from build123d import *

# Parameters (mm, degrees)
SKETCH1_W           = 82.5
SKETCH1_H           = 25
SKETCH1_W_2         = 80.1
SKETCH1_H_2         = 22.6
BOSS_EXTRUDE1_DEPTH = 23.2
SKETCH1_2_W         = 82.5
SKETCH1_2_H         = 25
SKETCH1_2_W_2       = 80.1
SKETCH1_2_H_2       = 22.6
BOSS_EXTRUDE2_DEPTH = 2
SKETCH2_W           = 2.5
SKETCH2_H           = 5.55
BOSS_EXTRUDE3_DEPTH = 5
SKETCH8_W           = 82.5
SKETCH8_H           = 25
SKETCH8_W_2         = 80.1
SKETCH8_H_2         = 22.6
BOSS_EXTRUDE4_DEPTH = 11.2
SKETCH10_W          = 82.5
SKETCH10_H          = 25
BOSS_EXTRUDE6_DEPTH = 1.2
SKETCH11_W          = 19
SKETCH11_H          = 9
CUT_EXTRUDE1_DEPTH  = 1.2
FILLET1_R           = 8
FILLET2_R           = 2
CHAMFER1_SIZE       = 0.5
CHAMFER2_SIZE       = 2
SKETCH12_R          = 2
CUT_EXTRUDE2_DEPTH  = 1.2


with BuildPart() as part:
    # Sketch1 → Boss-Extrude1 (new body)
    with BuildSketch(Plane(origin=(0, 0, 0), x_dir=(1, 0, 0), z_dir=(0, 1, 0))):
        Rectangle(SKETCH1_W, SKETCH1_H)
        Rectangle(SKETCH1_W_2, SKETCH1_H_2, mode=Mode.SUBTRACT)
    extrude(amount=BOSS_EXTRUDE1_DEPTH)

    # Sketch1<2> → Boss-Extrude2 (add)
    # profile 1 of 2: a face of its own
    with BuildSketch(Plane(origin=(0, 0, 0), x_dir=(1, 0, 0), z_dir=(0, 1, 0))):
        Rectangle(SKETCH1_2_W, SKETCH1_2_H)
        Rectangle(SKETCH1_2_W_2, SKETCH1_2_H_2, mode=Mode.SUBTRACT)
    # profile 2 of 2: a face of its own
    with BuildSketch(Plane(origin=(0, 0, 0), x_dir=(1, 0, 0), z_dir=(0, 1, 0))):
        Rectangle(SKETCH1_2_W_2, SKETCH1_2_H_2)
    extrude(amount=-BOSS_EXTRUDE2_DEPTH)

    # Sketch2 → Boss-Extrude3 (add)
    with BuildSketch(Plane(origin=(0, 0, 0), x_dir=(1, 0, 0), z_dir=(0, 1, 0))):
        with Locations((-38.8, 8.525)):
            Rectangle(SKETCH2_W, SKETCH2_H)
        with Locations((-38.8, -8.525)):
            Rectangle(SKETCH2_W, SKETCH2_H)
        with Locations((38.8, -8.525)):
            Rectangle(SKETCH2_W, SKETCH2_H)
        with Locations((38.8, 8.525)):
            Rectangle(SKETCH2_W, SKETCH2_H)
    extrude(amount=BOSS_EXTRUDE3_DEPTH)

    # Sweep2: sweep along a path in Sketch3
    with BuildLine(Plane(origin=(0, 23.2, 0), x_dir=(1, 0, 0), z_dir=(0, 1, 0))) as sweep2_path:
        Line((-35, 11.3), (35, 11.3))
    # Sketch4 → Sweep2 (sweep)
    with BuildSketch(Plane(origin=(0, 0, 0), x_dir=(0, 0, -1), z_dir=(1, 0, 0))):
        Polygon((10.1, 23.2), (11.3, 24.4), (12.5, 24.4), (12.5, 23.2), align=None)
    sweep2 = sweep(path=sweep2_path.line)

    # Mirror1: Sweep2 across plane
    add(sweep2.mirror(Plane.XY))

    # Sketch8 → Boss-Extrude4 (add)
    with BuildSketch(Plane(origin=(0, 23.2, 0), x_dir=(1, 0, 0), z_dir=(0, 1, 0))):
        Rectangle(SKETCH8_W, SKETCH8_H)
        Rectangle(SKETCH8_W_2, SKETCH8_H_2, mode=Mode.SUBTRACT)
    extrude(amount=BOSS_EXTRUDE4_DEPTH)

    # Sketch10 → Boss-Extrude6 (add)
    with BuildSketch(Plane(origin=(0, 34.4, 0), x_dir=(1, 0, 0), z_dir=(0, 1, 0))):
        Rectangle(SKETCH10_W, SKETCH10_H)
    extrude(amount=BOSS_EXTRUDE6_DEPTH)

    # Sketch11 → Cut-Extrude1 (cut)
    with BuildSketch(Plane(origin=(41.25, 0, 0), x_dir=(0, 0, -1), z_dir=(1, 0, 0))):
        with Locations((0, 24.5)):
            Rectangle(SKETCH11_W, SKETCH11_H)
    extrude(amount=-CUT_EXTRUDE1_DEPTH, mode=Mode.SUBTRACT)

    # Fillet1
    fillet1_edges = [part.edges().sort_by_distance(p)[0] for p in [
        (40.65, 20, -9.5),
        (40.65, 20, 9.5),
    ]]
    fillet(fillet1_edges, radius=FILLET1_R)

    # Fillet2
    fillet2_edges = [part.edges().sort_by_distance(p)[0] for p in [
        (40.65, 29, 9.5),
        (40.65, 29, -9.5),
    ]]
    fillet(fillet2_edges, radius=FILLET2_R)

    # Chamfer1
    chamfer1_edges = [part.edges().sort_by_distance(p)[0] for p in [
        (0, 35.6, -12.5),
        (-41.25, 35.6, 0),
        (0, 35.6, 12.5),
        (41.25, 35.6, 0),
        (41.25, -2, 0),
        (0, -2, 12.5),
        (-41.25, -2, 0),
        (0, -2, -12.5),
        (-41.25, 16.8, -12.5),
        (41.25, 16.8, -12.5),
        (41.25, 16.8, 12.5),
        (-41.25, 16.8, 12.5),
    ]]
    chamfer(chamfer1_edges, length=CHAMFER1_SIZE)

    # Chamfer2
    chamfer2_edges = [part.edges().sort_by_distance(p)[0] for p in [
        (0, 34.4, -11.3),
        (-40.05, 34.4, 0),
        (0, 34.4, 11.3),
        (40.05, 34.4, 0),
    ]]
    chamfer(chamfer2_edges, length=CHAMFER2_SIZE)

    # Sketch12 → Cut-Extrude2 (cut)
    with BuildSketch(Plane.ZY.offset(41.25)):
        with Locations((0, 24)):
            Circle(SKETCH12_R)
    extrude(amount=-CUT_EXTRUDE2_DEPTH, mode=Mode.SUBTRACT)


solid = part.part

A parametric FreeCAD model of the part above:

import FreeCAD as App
import Part
import Sketcher

V = App.Vector
Q = App.Units.Quantity


def edges_at(feature, points):
    """Names of the edges that pass closest to the given points."""
    edges = feature.Shape.Edges
    near = lambda p: min(range(len(edges)), key=lambda i: edges[i].distToShape(Part.Vertex(*p))[0])
    return sorted({f"Edge{near(p) + 1}" for p in points})

doc = App.newDocument("Part")
body = doc.addObject("PartDesign::Body", "Body")

sketch1 = body.newObject("Sketcher::SketchObject", "Sketch")
sketch1.AttachmentSupport = (doc.getObject("XZ_Plane"), [""])
sketch1.MapMode = "FlatFace"
sketch1.addGeometry([
    Part.LineSegment(V(-41, -12, 0), V(-41, 12, 0)),
    Part.LineSegment(V(-41, 12, 0), V(41, 12, 0)),
    Part.LineSegment(V(41, 12, 0), V(41, -12, 0)),
    Part.LineSegment(V(41, -12, 0), V(-41, -12, 0)),
    Part.LineSegment(V(40, 11, 0), V(-40, 11, 0)),
    Part.LineSegment(V(-40, 11, 0), V(-40, -11, 0)),
    Part.LineSegment(V(-40, -11, 0), V(40, -11, 0)),
    Part.LineSegment(V(40, -11, 0), V(40, 11, 0)),
], False)
sketch1.addConstraint([
    Sketcher.Constraint("Coincident", 0, 2, 1, 1),
    Sketcher.Constraint("Coincident", 1, 2, 2, 1),
    Sketcher.Constraint("Coincident", 2, 2, 3, 1),
    Sketcher.Constraint("Coincident", 3, 2, 0, 1),
    Sketcher.Constraint("Coincident", 4, 2, 5, 1),
    Sketcher.Constraint("Coincident", 5, 2, 6, 1),
    Sketcher.Constraint("Coincident", 6, 2, 7, 1),
    Sketcher.Constraint("Coincident", 7, 2, 4, 1),
    Sketcher.Constraint("Vertical", 0),
    Sketcher.Constraint("Horizontal", 1),
    Sketcher.Constraint("Vertical", 2),
    Sketcher.Constraint("Horizontal", 3),
    Sketcher.Constraint("Horizontal", 4),
    Sketcher.Constraint("Vertical", 5),
    Sketcher.Constraint("Horizontal", 6),
    Sketcher.Constraint("Vertical", 7),
    Sketcher.Constraint("Symmetric", 0, 2, 2, 2, -1, 1),
    Sketcher.Constraint("Symmetric", 4, 2, 6, 2, -1, 1),
    Sketcher.Constraint("DistanceY", 0, 1, 0, 2, 25.0),
    Sketcher.Constraint("DistanceX", 1, 1, 1, 2, 82.5),
    Sketcher.Constraint("DistanceX", 4, 2, 4, 1, 80.1),
    Sketcher.Constraint("DistanceY", 5, 2, 5, 1, 22.6),
])
pad1 = body.newObject("PartDesign::Pad", "Pad")
pad1.Profile = sketch1
pad1.Length = 23.2
pad1.Reversed = True

sketch2 = body.newObject("Sketcher::SketchObject", "Sketch001")
sketch2.AttachmentSupport = (doc.getObject("XZ_Plane"), [""])
sketch2.MapMode = "FlatFace"
sketch2.addGeometry([
    Part.LineSegment(V(-41, -12, 0), V(-41, 12, 0)),
    Part.LineSegment(V(-41, 12, 0), V(41, 12, 0)),
    Part.LineSegment(V(41, 12, 0), V(41, -12, 0)),
    Part.LineSegment(V(41, -12, 0), V(-41, -12, 0)),
], False)
sketch2.addConstraint([
    Sketcher.Constraint("Coincident", 0, 2, 1, 1),
    Sketcher.Constraint("Coincident", 1, 2, 2, 1),
    Sketcher.Constraint("Coincident", 2, 2, 3, 1),
    Sketcher.Constraint("Coincident", 3, 2, 0, 1),
    Sketcher.Constraint("Vertical", 0),
    Sketcher.Constraint("Horizontal", 1),
    Sketcher.Constraint("Vertical", 2),
    Sketcher.Constraint("Horizontal", 3),
    Sketcher.Constraint("Symmetric", 0, 2, 2, 2, -1, 1),
    Sketcher.Constraint("DistanceY", 0, 1, 0, 2, 25.0),
    Sketcher.Constraint("DistanceX", 1, 1, 1, 2, 82.5),
])
pad2 = body.newObject("PartDesign::Pad", "Pad001")
pad2.Profile = sketch2
pad2.Length = 2

sketch3 = body.newObject("Sketcher::SketchObject", "Sketch002")
sketch3.AttachmentSupport = (doc.getObject("XZ_Plane"), [""])
sketch3.MapMode = "FlatFace"
sketch3.addGeometry([
    Part.LineSegment(V(-40, -11.3, 0), V(-40, -5.8, 0)),
    Part.LineSegment(V(-40, -5.8, 0), V(-37.5, -5.8, 0)),
    Part.LineSegment(V(-37.5, -5.8, 0), V(-37.5, -11.3, 0)),
    Part.LineSegment(V(-37.5, -11.3, 0), V(-40, -11.3, 0)),
    Part.LineSegment(V(-40, 5.8, 0), V(-40, 11.3, 0)),
    Part.LineSegment(V(-40, 11.3, 0), V(-37.5, 11.3, 0)),
    Part.LineSegment(V(-37.5, 11.3, 0), V(-37.5, 5.8, 0)),
    Part.LineSegment(V(-37.5, 5.8, 0), V(-40, 5.8, 0)),
    Part.LineSegment(V(37.5, 5.8, 0), V(37.5, 11.3, 0)),
    Part.LineSegment(V(37.5, 11.3, 0), V(40, 11.3, 0)),
    Part.LineSegment(V(40, 11.3, 0), V(40, 5.8, 0)),
    Part.LineSegment(V(40, 5.8, 0), V(37.5, 5.8, 0)),
    Part.LineSegment(V(37.5, -11.3, 0), V(37.5, -5.8, 0)),
    Part.LineSegment(V(37.5, -5.8, 0), V(40, -5.8, 0)),
    Part.LineSegment(V(40, -5.8, 0), V(40, -11.3, 0)),
    Part.LineSegment(V(40, -11.3, 0), V(37.5, -11.3, 0)),
], False)
sketch3.addConstraint([
    Sketcher.Constraint("Coincident", 0, 2, 1, 1),
    Sketcher.Constraint("Coincident", 1, 2, 2, 1),
    Sketcher.Constraint("Coincident", 2, 2, 3, 1),
    Sketcher.Constraint("Coincident", 3, 2, 0, 1),
    Sketcher.Constraint("Coincident", 4, 2, 5, 1),
    Sketcher.Constraint("Coincident", 5, 2, 6, 1),
    Sketcher.Constraint("Coincident", 6, 2, 7, 1),
    Sketcher.Constraint("Coincident", 7, 2, 4, 1),
    Sketcher.Constraint("Coincident", 8, 2, 9, 1),
    Sketcher.Constraint("Coincident", 9, 2, 10, 1),
    Sketcher.Constraint("Coincident", 10, 2, 11, 1),
    Sketcher.Constraint("Coincident", 11, 2, 8, 1),
    Sketcher.Constraint("Coincident", 12, 2, 13, 1),
    Sketcher.Constraint("Coincident", 13, 2, 14, 1),
    Sketcher.Constraint("Coincident", 14, 2, 15, 1),
    Sketcher.Constraint("Coincident", 15, 2, 12, 1),
    Sketcher.Constraint("Vertical", 0),
    Sketcher.Constraint("Horizontal", 1),
    Sketcher.Constraint("Vertical", 2),
    Sketcher.Constraint("Horizontal", 3),
    Sketcher.Constraint("Vertical", 4),
    Sketcher.Constraint("Horizontal", 5),
    Sketcher.Constraint("Vertical", 6),
    Sketcher.Constraint("Horizontal", 7),
    Sketcher.Constraint("Vertical", 8),
    Sketcher.Constraint("Horizontal", 9),
    Sketcher.Constraint("Vertical", 10),
    Sketcher.Constraint("Horizontal", 11),
    Sketcher.Constraint("Vertical", 12),
    Sketcher.Constraint("Horizontal", 13),
    Sketcher.Constraint("Vertical", 14),
    Sketcher.Constraint("Horizontal", 15),
    Sketcher.Constraint("Symmetric", 2, 2, 8, 2, -1, 1),
    Sketcher.Constraint("Symmetric", 0, 2, 10, 2, -1, 1),
    Sketcher.Constraint("Symmetric", 6, 2, 12, 2, -1, 1),
    Sketcher.Constraint("Symmetric", 4, 2, 14, 2, -1, 1),
    Sketcher.Constraint("Symmetric", 5, 2, 8, 2, -2),
    Sketcher.Constraint("Symmetric", 7, 2, 10, 2, -2),
    Sketcher.Constraint("DistanceX", 1, 1, 1, 2, 2.5),
    Sketcher.Constraint("DistanceY", 0, 1, 0, 2, 5.55),
    Sketcher.Constraint("DistanceY", 2, 2, -1, 1, 11.3),
    Sketcher.Constraint("DistanceX", 5, 2, 8, 2, 75.1),
])
pad3 = body.newObject("PartDesign::Pad", "Pad002")
pad3.Profile = sketch3
pad3.Length = 5
pad3.Reversed = True

sketch4 = body.newObject("Sketcher::SketchObject", "Sketch003")
sketch4.AttachmentSupport = (doc.getObject("YZ_Plane"), [""])
sketch4.MapMode = "FlatFace"
sketch4.addGeometry([
    Part.LineSegment(V(24.4, -11.3, 0), V(23.2, -10.1, 0)),
    Part.LineSegment(V(23.2, -10.1, 0), V(23.2, -12.5, 0)),
    Part.LineSegment(V(23.2, -12.5, 0), V(24.4, -12.5, 0)),
    Part.LineSegment(V(24.4, -12.5, 0), V(24.4, -11.3, 0)),
], False)
sketch4.addConstraint([
    Sketcher.Constraint("Coincident", 0, 2, 1, 1),
    Sketcher.Constraint("Coincident", 1, 2, 2, 1),
    Sketcher.Constraint("Coincident", 2, 2, 3, 1),
    Sketcher.Constraint("Coincident", 3, 2, 0, 1),
    Sketcher.Constraint("Vertical", 1),
    Sketcher.Constraint("Horizontal", 2),
    Sketcher.Constraint("Vertical", 3),
    Sketcher.Constraint("Equal", 2, 3),
    Sketcher.Constraint("Angle", 0, Q("135 deg")),
    Sketcher.Constraint("DistanceX", 2, 1, 2, 2, 1.2),
    Sketcher.Constraint("DistanceX", -1, 1, 0, 2, 23.2),
    Sketcher.Constraint("DistanceY", 0, 2, -1, 1, 10.1),
])

sketch5 = body.newObject("Sketcher::SketchObject", "Sketch004")
sketch5.AttachmentSupport = (doc.getObject("XY_Plane"), [""])
sketch5.MapMode = "FlatFace"
sketch5.AttachmentOffset = App.Placement(V(0, 0, -11.3), App.Rotation())
sketch5.addGeometry(Part.LineSegment(V(-35, 23, 0), V(35, 23, 0)), False)
sketch5.addConstraint([
    Sketcher.Constraint("Horizontal", 0),
    Sketcher.Constraint("DistanceX", 0, 1, 0, 2, 70.0),
    Sketcher.Constraint("DistanceX", 0, 1, -1, 1, 35.0),
    Sketcher.Constraint("DistanceY", -1, 1, 0, 1, 23.2),
])
doc.recompute()

additivepipe = body.newObject("PartDesign::AdditivePipe", "AdditivePipe")
additivepipe.Profile = sketch4
additivepipe.Spine = (sketch5, ["Edge1"])
doc.recompute()

mirrored = body.newObject("PartDesign::Mirrored", "Mirrored")
mirrored.Originals = [additivepipe]
mirrored.MirrorPlane = (doc.getObject("XY_Plane"), [""])
body.Tip = mirrored

sketch6 = body.newObject("Sketcher::SketchObject", "Sketch005")
sketch6.AttachmentSupport = (doc.getObject("XZ_Plane"), [""])
sketch6.MapMode = "FlatFace"
sketch6.AttachmentOffset = App.Placement(V(0, 0, -23.2), App.Rotation())
sketch6.addGeometry([
    Part.LineSegment(V(-41, -12, 0), V(-41, 12, 0)),
    Part.LineSegment(V(-41, 12, 0), V(41, 12, 0)),
    Part.LineSegment(V(41, 12, 0), V(41, -12, 0)),
    Part.LineSegment(V(41, -12, 0), V(-41, -12, 0)),
    Part.LineSegment(V(40, 11, 0), V(-40, 11, 0)),
    Part.LineSegment(V(-40, 11, 0), V(-40, -11, 0)),
    Part.LineSegment(V(-40, -11, 0), V(40, -11, 0)),
    Part.LineSegment(V(40, -11, 0), V(40, 11, 0)),
], False)
sketch6.addConstraint([
    Sketcher.Constraint("Coincident", 0, 2, 1, 1),
    Sketcher.Constraint("Coincident", 1, 2, 2, 1),
    Sketcher.Constraint("Coincident", 2, 2, 3, 1),
    Sketcher.Constraint("Coincident", 3, 2, 0, 1),
    Sketcher.Constraint("Coincident", 4, 2, 5, 1),
    Sketcher.Constraint("Coincident", 5, 2, 6, 1),
    Sketcher.Constraint("Coincident", 6, 2, 7, 1),
    Sketcher.Constraint("Coincident", 7, 2, 4, 1),
    Sketcher.Constraint("Vertical", 0),
    Sketcher.Constraint("Horizontal", 1),
    Sketcher.Constraint("Vertical", 2),
    Sketcher.Constraint("Horizontal", 3),
    Sketcher.Constraint("Horizontal", 4),
    Sketcher.Constraint("Vertical", 5),
    Sketcher.Constraint("Horizontal", 6),
    Sketcher.Constraint("Vertical", 7),
    Sketcher.Constraint("Symmetric", 0, 2, 2, 2, -1, 1),
    Sketcher.Constraint("Symmetric", 4, 2, 6, 2, -1, 1),
    Sketcher.Constraint("DistanceY", 0, 1, 0, 2, 25.0),
    Sketcher.Constraint("DistanceX", 1, 1, 1, 2, 82.5),
    Sketcher.Constraint("DistanceX", 4, 2, 4, 1, 80.1),
    Sketcher.Constraint("DistanceY", 5, 2, 5, 1, 22.6),
])
pad4 = body.newObject("PartDesign::Pad", "Pad003")
pad4.Profile = sketch6
pad4.Length = 11.2
pad4.Reversed = True

sketch7 = body.newObject("Sketcher::SketchObject", "Sketch006")
sketch7.AttachmentSupport = (doc.getObject("XZ_Plane"), [""])
sketch7.MapMode = "FlatFace"
sketch7.AttachmentOffset = App.Placement(V(0, 0, -34.4), App.Rotation())
sketch7.addGeometry([
    Part.LineSegment(V(-41, -12, 0), V(-41, 12, 0)),
    Part.LineSegment(V(-41, 12, 0), V(41, 12, 0)),
    Part.LineSegment(V(41, 12, 0), V(41, -12, 0)),
    Part.LineSegment(V(41, -12, 0), V(-41, -12, 0)),
], False)
sketch7.addConstraint([
    Sketcher.Constraint("Coincident", 0, 2, 1, 1),
    Sketcher.Constraint("Coincident", 1, 2, 2, 1),
    Sketcher.Constraint("Coincident", 2, 2, 3, 1),
    Sketcher.Constraint("Coincident", 3, 2, 0, 1),
    Sketcher.Constraint("Vertical", 0),
    Sketcher.Constraint("Horizontal", 1),
    Sketcher.Constraint("Vertical", 2),
    Sketcher.Constraint("Horizontal", 3),
    Sketcher.Constraint("Symmetric", 0, 2, 2, 2, -1, 1),
    Sketcher.Constraint("DistanceY", 0, 1, 0, 2, 25.0),
    Sketcher.Constraint("DistanceX", 1, 1, 1, 2, 82.5),
])
pad5 = body.newObject("PartDesign::Pad", "Pad004")
pad5.Profile = sketch7
pad5.Length = 1.2
pad5.Reversed = True

sketch8 = body.newObject("Sketcher::SketchObject", "Sketch007")
sketch8.AttachmentSupport = (doc.getObject("YZ_Plane"), [""])
sketch8.MapMode = "FlatFace"
sketch8.AttachmentOffset = App.Placement(V(0, 0, 41.25), App.Rotation())
sketch8.addGeometry([
    Part.LineSegment(V(29, 10, 0), V(20, 10, 0)),
    Part.LineSegment(V(20, 10, 0), V(20, -10, 0)),
    Part.LineSegment(V(20, -10, 0), V(29, -10, 0)),
    Part.LineSegment(V(29, -10, 0), V(29, 10, 0)),
], False)
sketch8.addConstraint([
    Sketcher.Constraint("Coincident", 0, 2, 1, 1),
    Sketcher.Constraint("Coincident", 1, 2, 2, 1),
    Sketcher.Constraint("Coincident", 2, 2, 3, 1),
    Sketcher.Constraint("Coincident", 3, 2, 0, 1),
    Sketcher.Constraint("Horizontal", 0),
    Sketcher.Constraint("Vertical", 1),
    Sketcher.Constraint("Horizontal", 2),
    Sketcher.Constraint("Vertical", 3),
    Sketcher.Constraint("DistanceX", 0, 2, 0, 1, 9.0),
    Sketcher.Constraint("DistanceY", 1, 2, 1, 1, 19.0),
    Sketcher.Constraint("DistanceX", -1, 1, 0, 2, 20.0),
    Sketcher.Constraint("DistanceY", -1, 1, 0, 2, 9.5),
])
pocket1 = body.newObject("PartDesign::Pocket", "Pocket")
pocket1.Profile = sketch8
pocket1.Length = 1.2
doc.recompute()

fillet = body.newObject("PartDesign::Fillet", "Fillet")
fillet.Base = (pocket1, edges_at(pocket1, [(40.65, 20, -9.5), (40.65, 20, 9.5)]))
fillet.Radius = 8
doc.recompute()

fillet2 = body.newObject("PartDesign::Fillet", "Fillet001")
fillet2.Base = (fillet, edges_at(fillet, [(40.65, 29, 9.5), (40.65, 29, -9.5)]))
fillet2.Radius = 2
doc.recompute()

chamfer = body.newObject("PartDesign::Chamfer", "Chamfer")
chamfer.Base = (fillet2, edges_at(fillet2, [
    (0, 35.6, -12.5),
    (-41.25, 35.6, 0),
    (0, 35.6, 12.5),
    (41.25, 35.6, 0),
    (41.25, -2, 0),
    (0, -2, 12.5),
    (-41.25, -2, 0),
    (0, -2, -12.5),
    (-41.25, 16.8, -12.5),
    (41.25, 16.8, -12.5),
    (41.25, 16.8, 12.5),
    (-41.25, 16.8, 12.5),
]))
chamfer.Size = 0.5
doc.recompute()

chamfer2 = body.newObject("PartDesign::Chamfer", "Chamfer001")
chamfer2.Base = (chamfer, edges_at(chamfer, [
    (0, 34.4, -11.3),
    (-40.05, 34.4, 0),
    (0, 34.4, 11.3),
    (40.05, 34.4, 0),
]))
chamfer2.Size = 2

sketch9 = body.newObject("Sketcher::SketchObject", "Sketch008")
sketch9.AttachmentSupport = (doc.getObject("YZ_Plane"), [""])
sketch9.MapMode = "FlatFace"
sketch9.AttachmentOffset = App.Placement(V(0, 0, -41.25), App.Rotation())
sketch9.addGeometry(Part.Circle(V(24, 0, 0), V(0, 0, 1), 2), False)
sketch9.addConstraint([
    Sketcher.Constraint("PointOnObject", 0, 3, -1),
    Sketcher.Constraint("Diameter", 0, 4.0),
    Sketcher.Constraint("DistanceX", -1, 1, 0, 3, 24.0),
])
pocket2 = body.newObject("PartDesign::Pocket", "Pocket001")
pocket2.Profile = sketch9
pocket2.Length = 1.2
pocket2.Reversed = True

doc.recompute()
